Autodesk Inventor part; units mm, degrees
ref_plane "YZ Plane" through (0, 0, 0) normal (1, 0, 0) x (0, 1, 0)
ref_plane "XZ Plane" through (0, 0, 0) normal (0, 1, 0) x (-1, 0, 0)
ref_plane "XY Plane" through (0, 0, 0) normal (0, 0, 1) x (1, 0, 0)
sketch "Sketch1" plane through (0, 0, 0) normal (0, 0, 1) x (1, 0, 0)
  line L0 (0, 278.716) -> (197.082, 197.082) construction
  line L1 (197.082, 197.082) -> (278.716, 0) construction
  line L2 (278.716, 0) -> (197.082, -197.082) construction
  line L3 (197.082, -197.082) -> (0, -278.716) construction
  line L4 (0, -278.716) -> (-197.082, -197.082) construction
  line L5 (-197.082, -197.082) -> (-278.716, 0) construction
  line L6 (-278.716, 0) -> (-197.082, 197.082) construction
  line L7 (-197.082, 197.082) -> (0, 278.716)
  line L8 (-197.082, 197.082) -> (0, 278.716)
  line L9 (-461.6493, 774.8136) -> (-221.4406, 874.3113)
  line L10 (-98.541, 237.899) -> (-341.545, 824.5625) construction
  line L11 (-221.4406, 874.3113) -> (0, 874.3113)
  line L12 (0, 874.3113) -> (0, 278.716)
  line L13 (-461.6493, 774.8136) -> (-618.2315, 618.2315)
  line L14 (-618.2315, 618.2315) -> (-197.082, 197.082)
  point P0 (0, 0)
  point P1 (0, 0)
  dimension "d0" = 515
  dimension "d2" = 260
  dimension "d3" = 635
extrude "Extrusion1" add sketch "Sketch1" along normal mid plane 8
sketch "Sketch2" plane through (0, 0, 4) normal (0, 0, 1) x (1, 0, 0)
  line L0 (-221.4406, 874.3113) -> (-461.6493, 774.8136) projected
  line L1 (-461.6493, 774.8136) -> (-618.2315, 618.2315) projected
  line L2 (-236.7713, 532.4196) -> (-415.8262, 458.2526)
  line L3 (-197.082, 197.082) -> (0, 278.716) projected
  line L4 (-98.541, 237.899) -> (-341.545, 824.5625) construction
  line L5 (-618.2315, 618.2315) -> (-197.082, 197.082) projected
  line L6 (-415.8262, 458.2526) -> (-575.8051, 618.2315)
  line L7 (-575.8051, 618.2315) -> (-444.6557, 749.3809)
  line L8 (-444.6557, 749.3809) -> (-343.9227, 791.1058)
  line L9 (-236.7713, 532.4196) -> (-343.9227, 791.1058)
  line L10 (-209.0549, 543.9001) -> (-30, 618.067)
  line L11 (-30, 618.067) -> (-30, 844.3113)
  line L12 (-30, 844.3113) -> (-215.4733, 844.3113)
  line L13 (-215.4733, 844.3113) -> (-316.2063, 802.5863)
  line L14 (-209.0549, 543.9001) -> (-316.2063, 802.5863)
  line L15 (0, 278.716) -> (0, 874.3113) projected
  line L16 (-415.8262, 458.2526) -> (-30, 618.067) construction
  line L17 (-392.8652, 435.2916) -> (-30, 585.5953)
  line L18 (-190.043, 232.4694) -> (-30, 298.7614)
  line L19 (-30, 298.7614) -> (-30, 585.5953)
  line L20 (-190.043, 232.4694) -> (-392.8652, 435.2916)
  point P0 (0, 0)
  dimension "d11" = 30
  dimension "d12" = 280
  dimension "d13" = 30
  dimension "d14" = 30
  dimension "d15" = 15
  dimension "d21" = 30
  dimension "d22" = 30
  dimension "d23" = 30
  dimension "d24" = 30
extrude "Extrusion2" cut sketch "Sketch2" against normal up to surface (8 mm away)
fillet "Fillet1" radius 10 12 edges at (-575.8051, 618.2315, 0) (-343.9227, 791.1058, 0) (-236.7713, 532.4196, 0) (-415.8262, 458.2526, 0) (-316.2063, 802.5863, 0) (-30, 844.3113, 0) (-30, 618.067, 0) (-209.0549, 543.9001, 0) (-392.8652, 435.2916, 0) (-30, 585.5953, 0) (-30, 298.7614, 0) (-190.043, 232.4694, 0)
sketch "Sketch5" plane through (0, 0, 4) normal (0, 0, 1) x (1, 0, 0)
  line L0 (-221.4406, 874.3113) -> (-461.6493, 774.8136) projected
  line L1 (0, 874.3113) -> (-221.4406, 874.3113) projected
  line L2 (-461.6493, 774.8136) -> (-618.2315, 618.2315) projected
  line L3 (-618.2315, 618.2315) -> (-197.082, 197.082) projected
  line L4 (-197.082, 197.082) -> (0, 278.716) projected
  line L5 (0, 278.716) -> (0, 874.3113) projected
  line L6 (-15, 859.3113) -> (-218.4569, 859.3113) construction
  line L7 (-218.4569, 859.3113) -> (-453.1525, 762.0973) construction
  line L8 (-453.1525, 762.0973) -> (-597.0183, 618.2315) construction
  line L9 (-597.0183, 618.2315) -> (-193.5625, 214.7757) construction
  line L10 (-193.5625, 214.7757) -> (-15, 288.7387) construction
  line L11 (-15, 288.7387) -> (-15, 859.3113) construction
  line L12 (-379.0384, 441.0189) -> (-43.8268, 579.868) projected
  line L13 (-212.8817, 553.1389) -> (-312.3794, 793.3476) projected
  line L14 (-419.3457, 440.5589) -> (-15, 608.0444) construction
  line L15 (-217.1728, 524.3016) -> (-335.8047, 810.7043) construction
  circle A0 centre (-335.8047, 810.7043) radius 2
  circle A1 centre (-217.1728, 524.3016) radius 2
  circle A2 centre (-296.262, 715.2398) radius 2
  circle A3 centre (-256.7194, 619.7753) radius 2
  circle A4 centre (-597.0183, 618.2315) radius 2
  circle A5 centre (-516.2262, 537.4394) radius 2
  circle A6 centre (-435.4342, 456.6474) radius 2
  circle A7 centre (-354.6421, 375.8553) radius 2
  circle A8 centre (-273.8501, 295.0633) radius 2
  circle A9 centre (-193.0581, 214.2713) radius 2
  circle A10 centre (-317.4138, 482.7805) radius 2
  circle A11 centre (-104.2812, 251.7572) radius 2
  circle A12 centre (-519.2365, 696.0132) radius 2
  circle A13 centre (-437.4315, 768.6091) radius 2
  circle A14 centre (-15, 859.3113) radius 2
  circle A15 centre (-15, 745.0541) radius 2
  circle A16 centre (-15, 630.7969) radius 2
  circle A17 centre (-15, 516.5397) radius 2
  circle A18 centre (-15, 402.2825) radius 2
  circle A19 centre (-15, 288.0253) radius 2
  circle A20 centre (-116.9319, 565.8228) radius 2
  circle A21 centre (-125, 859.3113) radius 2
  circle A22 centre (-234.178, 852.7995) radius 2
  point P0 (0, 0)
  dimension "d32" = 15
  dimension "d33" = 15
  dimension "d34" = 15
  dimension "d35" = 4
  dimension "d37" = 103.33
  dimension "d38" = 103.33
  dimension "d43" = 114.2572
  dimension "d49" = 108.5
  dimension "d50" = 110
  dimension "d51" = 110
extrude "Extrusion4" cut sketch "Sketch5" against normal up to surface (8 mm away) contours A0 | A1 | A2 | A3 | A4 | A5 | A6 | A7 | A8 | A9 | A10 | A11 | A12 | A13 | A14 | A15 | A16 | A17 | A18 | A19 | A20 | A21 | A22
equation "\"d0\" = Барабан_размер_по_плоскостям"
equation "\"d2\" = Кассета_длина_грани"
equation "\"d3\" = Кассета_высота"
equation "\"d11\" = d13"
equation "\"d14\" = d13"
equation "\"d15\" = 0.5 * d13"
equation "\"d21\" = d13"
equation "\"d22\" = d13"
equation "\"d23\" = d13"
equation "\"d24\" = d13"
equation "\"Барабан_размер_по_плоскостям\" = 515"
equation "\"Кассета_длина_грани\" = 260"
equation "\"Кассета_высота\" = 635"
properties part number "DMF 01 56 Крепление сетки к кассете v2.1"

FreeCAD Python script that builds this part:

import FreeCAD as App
import Part
import Sketcher

V = App.Vector
Q = App.Units.Quantity


def edges_at(feature, points):
    """Names of the edges that pass closest to the given points."""
    edges = feature.Shape.Edges
    near = lambda p: min(range(len(edges)), key=lambda i: edges[i].distToShape(Part.Vertex(*p))[0])
    return sorted({f"Edge{near(p) + 1}" for p in points})


def add_polygon(sketch, points):
    """Adds a closed chain of lines whose ends are joined by coincident constraints."""
    first, n = sketch.GeometryCount, len(points)
    for a, b in zip(points, points[1:] + points[:1]):
        sketch.addGeometry(Part.LineSegment(App.Vector(*a, 0), App.Vector(*b, 0)), False)
    for i in range(n):
        sketch.addConstraint(Sketcher.Constraint("Coincident", first + i, 2, first + (i + 1) % n, 1))

doc = App.newDocument("Part")
body = doc.addObject("PartDesign::Body", "Body")

# Sketch on XY plane
sketch1 = doc.addObject("Sketcher::SketchObject", "Sketch")
body.addObject(sketch1)
sketch1.AttachmentSupport = (doc.XY_Plane, [""])
sketch1.MapMode = "FlatFace"
add_polygon(sketch1, [(-618, 618), (-197, 197), (0, 279), (0, 874), (-221, 874), (-462, 775)])  # lines 0-5
sketch1.addConstraint([
    Sketcher.Constraint("Vertical", 2),
    Sketcher.Constraint("Horizontal", 3),
    Sketcher.Constraint("PointOnObject", 1, 2, -2),
    Sketcher.Constraint("Parallel", 1, 4),
    Sketcher.Constraint("Perpendicular", 0, 5),
    Sketcher.Constraint("Distance", 4, 260.0),
    Sketcher.Constraint("Angle", 0, Q("-45 deg")),
    Sketcher.Constraint("Angle", 1, Q("22.5 deg")),
    Sketcher.Constraint("Distance", 1, 213.32),
    Sketcher.Constraint("DistanceX", 3, 2, 3, 1, 221.4406),
    Sketcher.Constraint("DistanceY", 2, 1, 2, 2, 595.5953),
    Sketcher.Constraint("DistanceY", -1, 1, 0, 2, 197.082),
])
pad1 = doc.addObject("PartDesign::Pad", "Pad")
body.addObject(pad1)
pad1.Profile = sketch1
pad1.Length = 8
pad1.Midplane = True

# Sketch on XY plane
sketch2 = doc.addObject("Sketcher::SketchObject", "Sketch001")
body.addObject(sketch2)
sketch2.AttachmentSupport = (doc.XY_Plane, [""])
sketch2.MapMode = "FlatFace"
sketch2.AttachmentOffset = App.Placement(V(0, 0, 4), App.Rotation())
add_polygon(sketch2, [(-416, 458), (-237, 532), (-344, 791), (-445, 749), (-576, 618)])  # lines 0-4
add_polygon(sketch2, [(-316, 803), (-209, 544), (-30, 618), (-30, 844), (-215, 844)])  # lines 5-9
add_polygon(sketch2, [(-30, 586), (-393, 435), (-190, 232), (-30, 299)])  # lines 10-13
sketch2.addConstraint([
    Sketcher.Constraint("Vertical", 7),
    Sketcher.Constraint("Horizontal", 8),
    Sketcher.Constraint("Vertical", 13),
    Sketcher.Constraint("Perpendicular", 0, 1),
    Sketcher.Constraint("Perpendicular", 1, 2),
    Sketcher.Constraint("Perpendicular", 3, 4),
    Sketcher.Constraint("Perpendicular", 2, 5),
    Sketcher.Constraint("Perpendicular", 5, 6),
    Sketcher.Constraint("Parallel", 6, 9),
    Sketcher.Constraint("Parallel", 9, 10),
    Sketcher.Constraint("Parallel", 4, 11),
    Sketcher.Constraint("Parallel", 10, 12),
    Sketcher.Constraint("Vertical", 7, 2, 12, 2),
    Sketcher.Constraint("Equal", 1, 5),
    Sketcher.Constraint("Equal", 0, 6),
    Sketcher.Constraint("Equal", 2, 9),
    Sketcher.Constraint("Distance", 1, 280.0),
    Sketcher.Constraint("DistanceX", 6, 2, -1, 1, 30.0),
    Sketcher.Constraint("Angle", 3, Q("-135 deg")),
    Sketcher.Constraint("Angle", 0, Q("22.5 deg")),
    Sketcher.Constraint("DistanceY", -1, 1, 5, 2, 543.9),
    Sketcher.Constraint("DistanceY", 13, 1, 13, 2, 286.834),
    Sketcher.Constraint("DistanceX", 3, 2, 10, 2, 182.94),
    Sketcher.Constraint("DistanceY", 10, 2, 3, 2, 182.94),
    Sketcher.Constraint("DistanceX", 8, 2, 8, 1, 185.4733),
    Sketcher.Constraint("DistanceY", -1, 1, 2, 2, 749.381),
    Sketcher.Constraint("DistanceX", 3, 2, -1, 1, 575.805),
    Sketcher.Constraint("DistanceX", 5, 2, -1, 1, 209.055),
])
pocket1 = doc.addObject("PartDesign::Pocket", "Pocket")
body.addObject(pocket1)
pocket1.Profile = sketch2
pocket1.Length = 8
doc.recompute()

fillet = doc.addObject("PartDesign::Fillet", "Fillet")
body.addObject(fillet)
fillet.Base = (pocket1, edges_at(pocket1, [
    (-575.805, 618.231, 0),
    (-343.923, 791.106, 0),
    (-236.771, 532.42, 0),
    (-415.826, 458.253, 0),
    (-316.206, 802.586, 0),
    (-30, 844.311, 0),
    (-30, 618.067, 0),
    (-209.055, 543.9, 0),
    (-392.865, 435.292, 0),
    (-30, 585.595, 0),
    (-30, 298.761, 0),
    (-190.043, 232.469, 0),
]))
fillet.Radius = 10

# Sketch on XY plane
sketch3 = doc.addObject("Sketcher::SketchObject", "Sketch002")
body.addObject(sketch3)
sketch3.AttachmentSupport = (doc.XY_Plane, [""])
sketch3.MapMode = "FlatFace"
sketch3.AttachmentOffset = App.Placement(V(0, 0, 4), App.Rotation())
sketch3.addGeometry([
    Part.Circle(V(-335.8, 810.7, 0), V(0, 0, 1), 2),  # 0
    Part.Circle(V(-217.2, 524.3, 0), V(0, 0, 1), 2),  # 1
    Part.Circle(V(-296.3, 715.2, 0), V(0, 0, 1), 2),  # 2
    Part.Circle(V(-256.7, 619.8, 0), V(0, 0, 1), 2),  # 3
    Part.Circle(V(-597, 618.2, 0), V(0, 0, 1), 2),  # 4
    Part.Circle(V(-516.2, 537.4, 0), V(0, 0, 1), 2),  # 5
    Part.Circle(V(-435.4, 456.6, 0), V(0, 0, 1), 2),  # 6
    Part.Circle(V(-354.6, 375.9, 0), V(0, 0, 1), 2),  # 7
    Part.Circle(V(-273.9, 295.1, 0), V(0, 0, 1), 2),  # 8
    Part.Circle(V(-193.1, 214.3, 0), V(0, 0, 1), 2),  # 9
    Part.Circle(V(-317.4, 482.8, 0), V(0, 0, 1), 2),  # 10
    Part.Circle(V(-104.3, 251.8, 0), V(0, 0, 1), 2),  # 11
    Part.Circle(V(-519.2, 696, 0), V(0, 0, 1), 2),  # 12
    Part.Circle(V(-437.4, 768.6, 0), V(0, 0, 1), 2),  # 13
    Part.Circle(V(-15, 859.3, 0), V(0, 0, 1), 2),  # 14
    Part.Circle(V(-15, 745.1, 0), V(0, 0, 1), 2),  # 15
    Part.Circle(V(-15, 630.8, 0), V(0, 0, 1), 2),  # 16
    Part.Circle(V(-15, 516.5, 0), V(0, 0, 1), 2),  # 17
    Part.Circle(V(-15, 402.3, 0), V(0, 0, 1), 2),  # 18
    Part.Circle(V(-15, 288, 0), V(0, 0, 1), 2),  # 19
    Part.Circle(V(-116.9, 565.8, 0), V(0, 0, 1), 2),  # 20
    Part.Circle(V(-125, 859.3, 0), V(0, 0, 1), 2),  # 21
    Part.Circle(V(-234.2, 852.8, 0), V(0, 0, 1), 2),  # 22
], False)
sketch3.addConstraint([
    Sketcher.Constraint("Equal", 0, 1),
    Sketcher.Constraint("Equal", 1, 2),
    Sketcher.Constraint("Equal", 2, 3),
    Sketcher.Constraint("Equal", 3, 4),
    Sketcher.Constraint("Equal", 4, 5),
    Sketcher.Constraint("Equal", 5, 6),
    Sketcher.Constraint("Equal", 6, 7),
    Sketcher.Constraint("Equal", 7, 8),
    Sketcher.Constraint("Equal", 8, 9),
    Sketcher.Constraint("Equal", 9, 10),
    Sketcher.Constraint("Equal", 10, 11),
    Sketcher.Constraint("Equal", 11, 12),
    Sketcher.Constraint("Equal", 12, 13),
    Sketcher.Constraint("Equal", 13, 14),
    Sketcher.Constraint("Equal", 14, 15),
    Sketcher.Constraint("Equal", 15, 16),
    Sketcher.Constraint("Equal", 16, 17),
    Sketcher.Constraint("Equal", 17, 18),
    Sketcher.Constraint("Equal", 18, 19),
    Sketcher.Constraint("Equal", 19, 20),
    Sketcher.Constraint("Equal", 20, 21),
    Sketcher.Constraint("Equal", 21, 22),
    Sketcher.Constraint("Horizontal", 14, 3, 21, 3),
    Sketcher.Constraint("Vertical", 14, 3, 15, 3),
    Sketcher.Constraint("Vertical", 15, 3, 16, 3),
    Sketcher.Constraint("Vertical", 16, 3, 17, 3),
    Sketcher.Constraint("Vertical", 17, 3, 18, 3),
    Sketcher.Constraint("Vertical", 18, 3, 19, 3),
    Sketcher.Constraint("Diameter", 0, 4.0),
    Sketcher.Constraint("DistanceX", 14, 3, -1, 1, 15.0),
    Sketcher.Constraint("DistanceX", 21, 3, 14, 3, 110.0),
    Sketcher.Constraint("DistanceY", 15, 3, 14, 3, 114.2572),
    Sketcher.Constraint("DistanceY", 16, 3, 15, 3, 114.2572),
    Sketcher.Constraint("DistanceY", 17, 3, 16, 3, 114.2572),
    Sketcher.Constraint("DistanceY", 18, 3, 17, 3, 114.2572),
    Sketcher.Constraint("DistanceY", 19, 3, 18, 3, 114.2572),
    Sketcher.Constraint("DistanceX", 8, 3, -1, 1, 273.85),
    Sketcher.Constraint("DistanceY", 1, 3, 4, 3, 93.93),
    Sketcher.Constraint("DistanceY", 7, 3, 3, 3, 243.92),
    Sketcher.Constraint("DistanceX", 2, 3, -1, 1, 296.262),
    Sketcher.Constraint("DistanceX", 7, 3, -1, 1, 354.642),
    Sketcher.Constraint("DistanceX", 9, 3, -1, 1, 193.058),
    Sketcher.Constraint("DistanceY", -1, 1, 13, 3, 768.609),
    Sketcher.Constraint("DistanceY", -1, 1, 15, 3, 745.054),
    Sketcher.Constraint("DistanceX", 20, 3, -1, 1, 116.932),
    Sketcher.Constraint("DistanceX", 22, 3, -1, 1, 234.178),
    Sketcher.Constraint("DistanceX", 0, 3, 1, 3, 118.632),
    Sketcher.Constraint("DistanceY", 3, 3, 0, 3, 190.929),
    Sketcher.Constraint("DistanceX", 4, 3, 3, 3, 340.299),
    Sketcher.Constraint("DistanceX", 4, 3, 5, 3, 80.792),
    Sketcher.Constraint("DistanceY", 5, 3, 4, 3, 80.792),
    Sketcher.Constraint("DistanceY", 5, 3, 3, 3, 82.336),
    Sketcher.Constraint("DistanceX", 5, 3, 6, 3, 80.792),
    Sketcher.Constraint("DistanceY", 6, 3, 5, 3, 80.792),
    Sketcher.Constraint("DistanceX", 6, 3, 7, 3, 80.792),
    Sketcher.Constraint("DistanceY", 8, 3, 7, 3, 80.792),
    Sketcher.Constraint("DistanceY", 9, 3, 8, 3, 80.792),
    Sketcher.Constraint("DistanceX", 10, 3, 1, 3, 100.241),
    Sketcher.Constraint("DistanceY", 10, 3, 1, 3, 41.521),
    Sketcher.Constraint("DistanceX", 9, 3, 11, 3, 88.777),
    Sketcher.Constraint("DistanceY", 9, 3, 11, 3, 37.486),
    Sketcher.Constraint("DistanceY", 12, 3, 0, 3, 114.691),
    Sketcher.Constraint("DistanceX", 12, 3, 13, 3, 81.805),
    Sketcher.Constraint("DistanceY", 12, 3, 13, 3, 72.596),
    Sketcher.Constraint("DistanceX", 13, 3, 3, 3, 180.712),
    Sketcher.Constraint("DistanceY", 16, 3, 2, 3, 84.443),
    Sketcher.Constraint("DistanceX", 1, 3, 20, 3, 100.241),
    Sketcher.Constraint("DistanceY", 17, 3, 20, 3, 49.283),
    Sketcher.Constraint("DistanceY", -1, 1, 22, 3, 852.7995),
])
pocket2 = doc.addObject("PartDesign::Pocket", "Pocket001")
body.addObject(pocket2)
pocket2.Profile = sketch3
pocket2.Length = 8

doc.recompute()
